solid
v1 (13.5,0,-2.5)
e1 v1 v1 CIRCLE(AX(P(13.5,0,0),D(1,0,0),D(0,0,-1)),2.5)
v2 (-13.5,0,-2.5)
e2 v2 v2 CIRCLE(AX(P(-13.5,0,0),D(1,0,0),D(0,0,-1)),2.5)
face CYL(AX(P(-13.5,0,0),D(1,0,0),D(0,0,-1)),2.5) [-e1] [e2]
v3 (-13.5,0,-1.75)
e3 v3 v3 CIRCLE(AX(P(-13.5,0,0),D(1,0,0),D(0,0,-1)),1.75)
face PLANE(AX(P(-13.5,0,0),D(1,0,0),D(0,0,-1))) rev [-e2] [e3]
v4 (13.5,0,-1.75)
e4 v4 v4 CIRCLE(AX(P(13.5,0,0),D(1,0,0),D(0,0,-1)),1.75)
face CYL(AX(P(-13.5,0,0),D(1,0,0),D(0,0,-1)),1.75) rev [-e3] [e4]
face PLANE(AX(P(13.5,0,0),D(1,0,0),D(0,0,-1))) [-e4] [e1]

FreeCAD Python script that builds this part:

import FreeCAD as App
import Part
import Sketcher
from FreeCAD import Vector
Q = App.Units.Quantity

doc = App.newDocument("Part")
body = doc.addObject("PartDesign::Body", "Body")

sketch1 = body.newObject("Sketcher::SketchObject", "Sketch")
sketch1.AttachmentSupport = (doc.getObject("YZ_Plane"), [""])
sketch1.MapMode = "FlatFace"
sketch1.addGeometry([
    Part.Circle(Vector(0, 0, 0), Vector(0, 0, 1), 2.5),
    Part.Circle(Vector(0, 0, 0), Vector(0, 0, 1), 1.8),
], False)
sketch1.addConstraint([
    Sketcher.Constraint("Coincident", 0, 3, -1, 1),
    Sketcher.Constraint("Coincident", 1, 3, -1, 1),
    Sketcher.Constraint("Diameter", 0, Q("5 mm")),
    Sketcher.Constraint("Diameter", 1, Q("3.5 mm")),
])
pad1 = body.newObject("PartDesign::Pad", "Pad")
pad1.Profile = sketch1
pad1.Type = "TwoLengths"
pad1.Length = 13.5
pad1.Length2 = 13.5

doc.recompute()
